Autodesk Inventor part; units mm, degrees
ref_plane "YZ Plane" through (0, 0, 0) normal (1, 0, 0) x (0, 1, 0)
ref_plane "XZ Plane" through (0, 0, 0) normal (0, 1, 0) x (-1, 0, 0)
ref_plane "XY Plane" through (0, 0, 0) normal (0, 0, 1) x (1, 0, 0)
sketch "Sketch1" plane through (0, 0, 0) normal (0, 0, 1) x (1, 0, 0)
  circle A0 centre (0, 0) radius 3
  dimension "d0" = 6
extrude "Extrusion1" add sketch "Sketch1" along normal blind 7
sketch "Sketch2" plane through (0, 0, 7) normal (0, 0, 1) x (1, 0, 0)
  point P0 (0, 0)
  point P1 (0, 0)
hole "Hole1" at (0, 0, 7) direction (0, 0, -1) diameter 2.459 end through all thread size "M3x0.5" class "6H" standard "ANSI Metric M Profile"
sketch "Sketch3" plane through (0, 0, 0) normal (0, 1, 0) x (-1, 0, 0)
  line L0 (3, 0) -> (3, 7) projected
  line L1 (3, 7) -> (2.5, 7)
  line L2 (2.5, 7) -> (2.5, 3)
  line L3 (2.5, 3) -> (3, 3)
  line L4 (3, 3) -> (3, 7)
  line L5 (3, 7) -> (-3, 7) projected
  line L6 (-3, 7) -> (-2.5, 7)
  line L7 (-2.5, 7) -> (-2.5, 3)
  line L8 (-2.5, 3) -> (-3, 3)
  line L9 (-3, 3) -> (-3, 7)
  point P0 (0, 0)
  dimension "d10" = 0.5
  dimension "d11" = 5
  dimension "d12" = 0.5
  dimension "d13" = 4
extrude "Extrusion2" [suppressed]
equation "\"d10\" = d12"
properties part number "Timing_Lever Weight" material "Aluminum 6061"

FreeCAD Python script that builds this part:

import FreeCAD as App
import Part
import Sketcher

doc = App.newDocument("Part")
params = doc.addObject("Spreadsheet::Sheet", "Params")
for row, (alias, value) in enumerate([
    ("sketch1_diameter", "6 mm"),
    ("pad1_length", "7 mm"),
    ("hole_diameter", "2.459 mm"),
], start=1):
    params.set(f"A{row}", alias)
    params.set(f"B{row}", "=" + value)
    params.setAlias(f"B{row}", alias)

body = doc.addObject("PartDesign::Body", "Body")

sketch1 = body.newObject("Sketcher::SketchObject", "Sketch")
sketch1.AttachmentSupport = (doc.getObject("XY_Plane"), [""])
sketch1.MapMode = "FlatFace"
sketch1.addGeometry(Part.Circle(App.Vector(0, 0, 0), App.Vector(0, 0, 1), 3), False)
sketch1.addConstraint(Sketcher.Constraint("Coincident", 0, 3, -1, 1))
sketch1.addConstraint(Sketcher.Constraint("Diameter", 0, 6.0))
sketch1.setExpression("Constraints[1]", "Params.sketch1_diameter")
pad1 = body.newObject("PartDesign::Pad", "Pad")
pad1.Profile = sketch1
pad1.setExpression("Length", "Params.pad1_length")

sketch2 = body.newObject("Sketcher::SketchObject", "Sketch001")
sketch2.AttachmentSupport = (doc.getObject("XY_Plane"), [""])
sketch2.MapMode = "FlatFace"
sketch2.AttachmentOffset = App.Placement(App.Vector(0, 0, 7), App.Rotation())
sketch2.addGeometry(Part.Circle(App.Vector(0, 0, 0), App.Vector(0, 0, 1), 1.2), False)
sketch2.addConstraint(Sketcher.Constraint("Coincident", 0, 3, -1, 1))
sketch2.addConstraint(Sketcher.Constraint("Diameter", 0, 2.459))
doc.recompute()
hole = body.newObject("PartDesign::Hole", "Hole")
hole.Profile = sketch2
hole.ThreadType = "None"
hole.setExpression("Diameter", "Params.hole_diameter")
hole.DepthType = "ThroughAll"

doc.recompute()
